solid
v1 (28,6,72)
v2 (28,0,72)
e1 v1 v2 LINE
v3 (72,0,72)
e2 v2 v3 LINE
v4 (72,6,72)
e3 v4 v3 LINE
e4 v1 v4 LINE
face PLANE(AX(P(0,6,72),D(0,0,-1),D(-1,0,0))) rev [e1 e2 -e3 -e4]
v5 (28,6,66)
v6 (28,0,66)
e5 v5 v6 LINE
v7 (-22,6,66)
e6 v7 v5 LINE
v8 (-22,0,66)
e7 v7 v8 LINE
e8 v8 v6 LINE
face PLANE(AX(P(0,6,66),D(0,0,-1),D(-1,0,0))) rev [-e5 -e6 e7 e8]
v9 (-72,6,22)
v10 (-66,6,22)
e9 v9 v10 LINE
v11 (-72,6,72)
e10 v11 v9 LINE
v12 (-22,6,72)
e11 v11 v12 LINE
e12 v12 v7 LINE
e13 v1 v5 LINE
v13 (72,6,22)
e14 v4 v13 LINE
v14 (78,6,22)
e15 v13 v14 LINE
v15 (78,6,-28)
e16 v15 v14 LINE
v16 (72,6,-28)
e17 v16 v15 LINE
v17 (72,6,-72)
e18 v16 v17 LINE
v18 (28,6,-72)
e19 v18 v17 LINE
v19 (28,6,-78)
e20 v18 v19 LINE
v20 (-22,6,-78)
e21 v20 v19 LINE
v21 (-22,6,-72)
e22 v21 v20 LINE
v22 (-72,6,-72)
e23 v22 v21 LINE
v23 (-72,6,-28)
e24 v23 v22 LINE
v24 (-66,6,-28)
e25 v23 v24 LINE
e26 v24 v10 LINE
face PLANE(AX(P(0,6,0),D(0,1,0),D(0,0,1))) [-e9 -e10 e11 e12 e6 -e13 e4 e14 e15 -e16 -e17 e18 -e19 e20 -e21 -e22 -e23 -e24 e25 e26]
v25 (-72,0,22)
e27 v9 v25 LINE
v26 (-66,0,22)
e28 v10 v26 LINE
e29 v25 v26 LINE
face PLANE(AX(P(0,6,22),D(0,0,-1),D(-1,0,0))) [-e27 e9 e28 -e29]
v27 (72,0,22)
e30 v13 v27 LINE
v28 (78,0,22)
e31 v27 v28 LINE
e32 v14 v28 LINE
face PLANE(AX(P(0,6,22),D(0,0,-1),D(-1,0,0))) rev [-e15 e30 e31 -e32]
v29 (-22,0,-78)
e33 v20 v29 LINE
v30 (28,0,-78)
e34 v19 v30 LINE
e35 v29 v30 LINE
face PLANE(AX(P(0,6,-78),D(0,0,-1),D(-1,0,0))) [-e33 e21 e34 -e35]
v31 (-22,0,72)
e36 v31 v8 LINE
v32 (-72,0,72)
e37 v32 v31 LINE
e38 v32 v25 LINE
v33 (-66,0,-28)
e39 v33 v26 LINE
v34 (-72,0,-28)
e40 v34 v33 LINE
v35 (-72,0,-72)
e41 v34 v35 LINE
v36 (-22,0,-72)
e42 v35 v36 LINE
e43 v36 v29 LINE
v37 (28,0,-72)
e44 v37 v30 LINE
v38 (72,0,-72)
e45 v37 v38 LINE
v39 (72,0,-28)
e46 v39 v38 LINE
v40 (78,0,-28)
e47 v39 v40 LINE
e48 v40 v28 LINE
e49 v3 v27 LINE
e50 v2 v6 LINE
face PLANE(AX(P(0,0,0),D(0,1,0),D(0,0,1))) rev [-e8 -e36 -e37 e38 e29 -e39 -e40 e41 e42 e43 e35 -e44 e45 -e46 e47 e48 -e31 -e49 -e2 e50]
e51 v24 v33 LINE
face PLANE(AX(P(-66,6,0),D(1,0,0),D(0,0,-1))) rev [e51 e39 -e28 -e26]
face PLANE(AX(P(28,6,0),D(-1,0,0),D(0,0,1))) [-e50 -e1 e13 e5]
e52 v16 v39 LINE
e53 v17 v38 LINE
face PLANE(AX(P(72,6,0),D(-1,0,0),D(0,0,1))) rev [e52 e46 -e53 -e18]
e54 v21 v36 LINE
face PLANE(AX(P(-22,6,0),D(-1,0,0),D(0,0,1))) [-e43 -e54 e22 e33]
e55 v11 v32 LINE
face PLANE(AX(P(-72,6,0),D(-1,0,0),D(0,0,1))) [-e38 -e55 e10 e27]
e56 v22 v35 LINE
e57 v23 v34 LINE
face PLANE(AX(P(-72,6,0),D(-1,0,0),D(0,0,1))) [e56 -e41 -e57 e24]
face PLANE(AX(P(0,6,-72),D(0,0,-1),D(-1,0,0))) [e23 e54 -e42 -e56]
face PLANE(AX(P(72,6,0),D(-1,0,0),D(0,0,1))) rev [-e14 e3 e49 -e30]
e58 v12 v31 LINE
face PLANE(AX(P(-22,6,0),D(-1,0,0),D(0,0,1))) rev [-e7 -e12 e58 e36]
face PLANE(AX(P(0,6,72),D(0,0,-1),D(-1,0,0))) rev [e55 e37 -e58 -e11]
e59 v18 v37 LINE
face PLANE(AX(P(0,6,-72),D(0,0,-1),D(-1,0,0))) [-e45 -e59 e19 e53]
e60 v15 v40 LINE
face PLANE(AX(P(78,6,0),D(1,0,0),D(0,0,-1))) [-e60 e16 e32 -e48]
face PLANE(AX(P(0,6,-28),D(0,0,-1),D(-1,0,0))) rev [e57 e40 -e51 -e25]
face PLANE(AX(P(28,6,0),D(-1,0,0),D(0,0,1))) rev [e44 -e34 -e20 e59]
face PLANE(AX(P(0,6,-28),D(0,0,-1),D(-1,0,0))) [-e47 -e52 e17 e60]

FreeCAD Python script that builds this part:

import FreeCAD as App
import Part
import Sketcher
from FreeCAD import Vector

doc = App.newDocument("Part")
params = doc.addObject("Spreadsheet::Sheet", "Params")
for row, (alias, value) in enumerate([
    ("sketch1_width", "6 mm"),
    ("sketch1_width2", "50 mm"),
    ("sketch1_width3", "44 mm"),
    ("pad1_length", "6 mm"),
], start=1):
    params.set(f"A{row}", alias)
    params.set(f"B{row}", "=" + value)
    params.setAlias(f"B{row}", alias)

body = doc.addObject("PartDesign::Body", "Body")

sketch1 = body.newObject("Sketcher::SketchObject", "Sketch")
sketch1.AttachmentSupport = (doc.getObject("XZ_Plane"), [""])
sketch1.MapMode = "FlatFace"
sketch1.addGeometry([
    Part.LineSegment(Vector(-72, -72, 0), Vector(-72, -28, 0)),
    Part.LineSegment(Vector(-72, -28, 0), Vector(-66, -28, 0)),
    Part.LineSegment(Vector(-66, -28, 0), Vector(-66, 22, 0)),
    Part.LineSegment(Vector(-66, 22, 0), Vector(-72, 22, 0)),
    Part.LineSegment(Vector(-72, 22, 0), Vector(-72, 72, 0)),
    Part.LineSegment(Vector(-72, 72, 0), Vector(-22, 72, 0)),
    Part.LineSegment(Vector(-22, 72, 0), Vector(-22, 66, 0)),
    Part.LineSegment(Vector(-22, 66, 0), Vector(28, 66, 0)),
    Part.LineSegment(Vector(28, 66, 0), Vector(28, 72, 0)),
    Part.LineSegment(Vector(28, 72, 0), Vector(72, 72, 0)),
    Part.LineSegment(Vector(72, 72, 0), Vector(72, 22, 0)),
    Part.LineSegment(Vector(72, 22, 0), Vector(78, 22, 0)),
    Part.LineSegment(Vector(78, 22, 0), Vector(78, -28, 0)),
    Part.LineSegment(Vector(78, -28, 0), Vector(72, -28, 0)),
    Part.LineSegment(Vector(72, -28, 0), Vector(72, -72, 0)),
    Part.LineSegment(Vector(72, -72, 0), Vector(28, -72, 0)),
    Part.LineSegment(Vector(28, -72, 0), Vector(28, -78, 0)),
    Part.LineSegment(Vector(28, -78, 0), Vector(-22, -78, 0)),
    Part.LineSegment(Vector(-22, -78, 0), Vector(-22, -72, 0)),
    Part.LineSegment(Vector(-22, -72, 0), Vector(-72, -72, 0)),
], False)
sketch1.addConstraint([
    Sketcher.Constraint("Coincident", 0, 2, 1, 1),
    Sketcher.Constraint("Coincident", 1, 2, 2, 1),
    Sketcher.Constraint("Coincident", 2, 2, 3, 1),
    Sketcher.Constraint("Coincident", 3, 2, 4, 1),
    Sketcher.Constraint("Coincident", 4, 2, 5, 1),
    Sketcher.Constraint("Coincident", 5, 2, 6, 1),
    Sketcher.Constraint("Coincident", 6, 2, 7, 1),
    Sketcher.Constraint("Coincident", 7, 2, 8, 1),
    Sketcher.Constraint("Coincident", 8, 2, 9, 1),
    Sketcher.Constraint("Coincident", 9, 2, 10, 1),
    Sketcher.Constraint("Coincident", 10, 2, 11, 1),
    Sketcher.Constraint("Coincident", 11, 2, 12, 1),
    Sketcher.Constraint("Coincident", 12, 2, 13, 1),
    Sketcher.Constraint("Coincident", 13, 2, 14, 1),
    Sketcher.Constraint("Coincident", 14, 2, 15, 1),
    Sketcher.Constraint("Coincident", 15, 2, 16, 1),
    Sketcher.Constraint("Coincident", 16, 2, 17, 1),
    Sketcher.Constraint("Coincident", 17, 2, 18, 1),
    Sketcher.Constraint("Coincident", 18, 2, 19, 1),
    Sketcher.Constraint("Coincident", 19, 2, 0, 1),
    Sketcher.Constraint("Vertical", 0),
    Sketcher.Constraint("Horizontal", 1),
    Sketcher.Constraint("Vertical", 2),
    Sketcher.Constraint("Horizontal", 3),
    Sketcher.Constraint("Vertical", 4),
    Sketcher.Constraint("Horizontal", 5),
    Sketcher.Constraint("Vertical", 6),
    Sketcher.Constraint("Horizontal", 7),
    Sketcher.Constraint("Vertical", 8),
    Sketcher.Constraint("Horizontal", 9),
    Sketcher.Constraint("Vertical", 10),
    Sketcher.Constraint("Horizontal", 11),
    Sketcher.Constraint("Vertical", 12),
    Sketcher.Constraint("Horizontal", 13),
    Sketcher.Constraint("Vertical", 14),
    Sketcher.Constraint("Horizontal", 15),
    Sketcher.Constraint("Vertical", 16),
    Sketcher.Constraint("Horizontal", 17),
    Sketcher.Constraint("Vertical", 18),
    Sketcher.Constraint("Horizontal", 19),
    Sketcher.Constraint("Symmetric", 4, 2, 14, 2, -1, 1),
    Sketcher.Constraint("Symmetric", 9, 2, 19, 2, -1, 1),
    Sketcher.Constraint("Symmetric", 4, 2, 9, 2, -2),
    Sketcher.Constraint("Horizontal", 3, 2, 10, 2),
    Sketcher.Constraint("Horizontal", 1, 2, 12, 2),
    Sketcher.Constraint("Vertical", 8, 2, 15, 2),
    Sketcher.Constraint("Vertical", 6, 2, 17, 2),
    Sketcher.Constraint("Equal", 5, 7),
    Sketcher.Constraint("Equal", 3, 11),
    Sketcher.Constraint("Equal", 15, 0),
    Sketcher.Constraint("Equal", 19, 2),
    Sketcher.Constraint("Equal", 2, 4),
    Sketcher.Constraint("Equal", 13, 6),
    Sketcher.Constraint("Equal", 8, 16),
    Sketcher.Constraint("DistanceX", 1, 1, 1, 2, 6.0),
    Sketcher.Constraint("DistanceX", 5, 1, 5, 2, 50.0),
    Sketcher.Constraint("DistanceX", 9, 1, 9, 2, 44.0),
])
sketch1.setExpression("Constraints[54]", "Params.sketch1_width")
sketch1.setExpression("Constraints[55]", "Params.sketch1_width2")
sketch1.setExpression("Constraints[56]", "Params.sketch1_width3")
pad1 = body.newObject("PartDesign::Pad", "Pad")
pad1.Profile = sketch1
pad1.setExpression("Length", "Params.pad1_length")
pad1.Reversed = True

doc.recompute()
